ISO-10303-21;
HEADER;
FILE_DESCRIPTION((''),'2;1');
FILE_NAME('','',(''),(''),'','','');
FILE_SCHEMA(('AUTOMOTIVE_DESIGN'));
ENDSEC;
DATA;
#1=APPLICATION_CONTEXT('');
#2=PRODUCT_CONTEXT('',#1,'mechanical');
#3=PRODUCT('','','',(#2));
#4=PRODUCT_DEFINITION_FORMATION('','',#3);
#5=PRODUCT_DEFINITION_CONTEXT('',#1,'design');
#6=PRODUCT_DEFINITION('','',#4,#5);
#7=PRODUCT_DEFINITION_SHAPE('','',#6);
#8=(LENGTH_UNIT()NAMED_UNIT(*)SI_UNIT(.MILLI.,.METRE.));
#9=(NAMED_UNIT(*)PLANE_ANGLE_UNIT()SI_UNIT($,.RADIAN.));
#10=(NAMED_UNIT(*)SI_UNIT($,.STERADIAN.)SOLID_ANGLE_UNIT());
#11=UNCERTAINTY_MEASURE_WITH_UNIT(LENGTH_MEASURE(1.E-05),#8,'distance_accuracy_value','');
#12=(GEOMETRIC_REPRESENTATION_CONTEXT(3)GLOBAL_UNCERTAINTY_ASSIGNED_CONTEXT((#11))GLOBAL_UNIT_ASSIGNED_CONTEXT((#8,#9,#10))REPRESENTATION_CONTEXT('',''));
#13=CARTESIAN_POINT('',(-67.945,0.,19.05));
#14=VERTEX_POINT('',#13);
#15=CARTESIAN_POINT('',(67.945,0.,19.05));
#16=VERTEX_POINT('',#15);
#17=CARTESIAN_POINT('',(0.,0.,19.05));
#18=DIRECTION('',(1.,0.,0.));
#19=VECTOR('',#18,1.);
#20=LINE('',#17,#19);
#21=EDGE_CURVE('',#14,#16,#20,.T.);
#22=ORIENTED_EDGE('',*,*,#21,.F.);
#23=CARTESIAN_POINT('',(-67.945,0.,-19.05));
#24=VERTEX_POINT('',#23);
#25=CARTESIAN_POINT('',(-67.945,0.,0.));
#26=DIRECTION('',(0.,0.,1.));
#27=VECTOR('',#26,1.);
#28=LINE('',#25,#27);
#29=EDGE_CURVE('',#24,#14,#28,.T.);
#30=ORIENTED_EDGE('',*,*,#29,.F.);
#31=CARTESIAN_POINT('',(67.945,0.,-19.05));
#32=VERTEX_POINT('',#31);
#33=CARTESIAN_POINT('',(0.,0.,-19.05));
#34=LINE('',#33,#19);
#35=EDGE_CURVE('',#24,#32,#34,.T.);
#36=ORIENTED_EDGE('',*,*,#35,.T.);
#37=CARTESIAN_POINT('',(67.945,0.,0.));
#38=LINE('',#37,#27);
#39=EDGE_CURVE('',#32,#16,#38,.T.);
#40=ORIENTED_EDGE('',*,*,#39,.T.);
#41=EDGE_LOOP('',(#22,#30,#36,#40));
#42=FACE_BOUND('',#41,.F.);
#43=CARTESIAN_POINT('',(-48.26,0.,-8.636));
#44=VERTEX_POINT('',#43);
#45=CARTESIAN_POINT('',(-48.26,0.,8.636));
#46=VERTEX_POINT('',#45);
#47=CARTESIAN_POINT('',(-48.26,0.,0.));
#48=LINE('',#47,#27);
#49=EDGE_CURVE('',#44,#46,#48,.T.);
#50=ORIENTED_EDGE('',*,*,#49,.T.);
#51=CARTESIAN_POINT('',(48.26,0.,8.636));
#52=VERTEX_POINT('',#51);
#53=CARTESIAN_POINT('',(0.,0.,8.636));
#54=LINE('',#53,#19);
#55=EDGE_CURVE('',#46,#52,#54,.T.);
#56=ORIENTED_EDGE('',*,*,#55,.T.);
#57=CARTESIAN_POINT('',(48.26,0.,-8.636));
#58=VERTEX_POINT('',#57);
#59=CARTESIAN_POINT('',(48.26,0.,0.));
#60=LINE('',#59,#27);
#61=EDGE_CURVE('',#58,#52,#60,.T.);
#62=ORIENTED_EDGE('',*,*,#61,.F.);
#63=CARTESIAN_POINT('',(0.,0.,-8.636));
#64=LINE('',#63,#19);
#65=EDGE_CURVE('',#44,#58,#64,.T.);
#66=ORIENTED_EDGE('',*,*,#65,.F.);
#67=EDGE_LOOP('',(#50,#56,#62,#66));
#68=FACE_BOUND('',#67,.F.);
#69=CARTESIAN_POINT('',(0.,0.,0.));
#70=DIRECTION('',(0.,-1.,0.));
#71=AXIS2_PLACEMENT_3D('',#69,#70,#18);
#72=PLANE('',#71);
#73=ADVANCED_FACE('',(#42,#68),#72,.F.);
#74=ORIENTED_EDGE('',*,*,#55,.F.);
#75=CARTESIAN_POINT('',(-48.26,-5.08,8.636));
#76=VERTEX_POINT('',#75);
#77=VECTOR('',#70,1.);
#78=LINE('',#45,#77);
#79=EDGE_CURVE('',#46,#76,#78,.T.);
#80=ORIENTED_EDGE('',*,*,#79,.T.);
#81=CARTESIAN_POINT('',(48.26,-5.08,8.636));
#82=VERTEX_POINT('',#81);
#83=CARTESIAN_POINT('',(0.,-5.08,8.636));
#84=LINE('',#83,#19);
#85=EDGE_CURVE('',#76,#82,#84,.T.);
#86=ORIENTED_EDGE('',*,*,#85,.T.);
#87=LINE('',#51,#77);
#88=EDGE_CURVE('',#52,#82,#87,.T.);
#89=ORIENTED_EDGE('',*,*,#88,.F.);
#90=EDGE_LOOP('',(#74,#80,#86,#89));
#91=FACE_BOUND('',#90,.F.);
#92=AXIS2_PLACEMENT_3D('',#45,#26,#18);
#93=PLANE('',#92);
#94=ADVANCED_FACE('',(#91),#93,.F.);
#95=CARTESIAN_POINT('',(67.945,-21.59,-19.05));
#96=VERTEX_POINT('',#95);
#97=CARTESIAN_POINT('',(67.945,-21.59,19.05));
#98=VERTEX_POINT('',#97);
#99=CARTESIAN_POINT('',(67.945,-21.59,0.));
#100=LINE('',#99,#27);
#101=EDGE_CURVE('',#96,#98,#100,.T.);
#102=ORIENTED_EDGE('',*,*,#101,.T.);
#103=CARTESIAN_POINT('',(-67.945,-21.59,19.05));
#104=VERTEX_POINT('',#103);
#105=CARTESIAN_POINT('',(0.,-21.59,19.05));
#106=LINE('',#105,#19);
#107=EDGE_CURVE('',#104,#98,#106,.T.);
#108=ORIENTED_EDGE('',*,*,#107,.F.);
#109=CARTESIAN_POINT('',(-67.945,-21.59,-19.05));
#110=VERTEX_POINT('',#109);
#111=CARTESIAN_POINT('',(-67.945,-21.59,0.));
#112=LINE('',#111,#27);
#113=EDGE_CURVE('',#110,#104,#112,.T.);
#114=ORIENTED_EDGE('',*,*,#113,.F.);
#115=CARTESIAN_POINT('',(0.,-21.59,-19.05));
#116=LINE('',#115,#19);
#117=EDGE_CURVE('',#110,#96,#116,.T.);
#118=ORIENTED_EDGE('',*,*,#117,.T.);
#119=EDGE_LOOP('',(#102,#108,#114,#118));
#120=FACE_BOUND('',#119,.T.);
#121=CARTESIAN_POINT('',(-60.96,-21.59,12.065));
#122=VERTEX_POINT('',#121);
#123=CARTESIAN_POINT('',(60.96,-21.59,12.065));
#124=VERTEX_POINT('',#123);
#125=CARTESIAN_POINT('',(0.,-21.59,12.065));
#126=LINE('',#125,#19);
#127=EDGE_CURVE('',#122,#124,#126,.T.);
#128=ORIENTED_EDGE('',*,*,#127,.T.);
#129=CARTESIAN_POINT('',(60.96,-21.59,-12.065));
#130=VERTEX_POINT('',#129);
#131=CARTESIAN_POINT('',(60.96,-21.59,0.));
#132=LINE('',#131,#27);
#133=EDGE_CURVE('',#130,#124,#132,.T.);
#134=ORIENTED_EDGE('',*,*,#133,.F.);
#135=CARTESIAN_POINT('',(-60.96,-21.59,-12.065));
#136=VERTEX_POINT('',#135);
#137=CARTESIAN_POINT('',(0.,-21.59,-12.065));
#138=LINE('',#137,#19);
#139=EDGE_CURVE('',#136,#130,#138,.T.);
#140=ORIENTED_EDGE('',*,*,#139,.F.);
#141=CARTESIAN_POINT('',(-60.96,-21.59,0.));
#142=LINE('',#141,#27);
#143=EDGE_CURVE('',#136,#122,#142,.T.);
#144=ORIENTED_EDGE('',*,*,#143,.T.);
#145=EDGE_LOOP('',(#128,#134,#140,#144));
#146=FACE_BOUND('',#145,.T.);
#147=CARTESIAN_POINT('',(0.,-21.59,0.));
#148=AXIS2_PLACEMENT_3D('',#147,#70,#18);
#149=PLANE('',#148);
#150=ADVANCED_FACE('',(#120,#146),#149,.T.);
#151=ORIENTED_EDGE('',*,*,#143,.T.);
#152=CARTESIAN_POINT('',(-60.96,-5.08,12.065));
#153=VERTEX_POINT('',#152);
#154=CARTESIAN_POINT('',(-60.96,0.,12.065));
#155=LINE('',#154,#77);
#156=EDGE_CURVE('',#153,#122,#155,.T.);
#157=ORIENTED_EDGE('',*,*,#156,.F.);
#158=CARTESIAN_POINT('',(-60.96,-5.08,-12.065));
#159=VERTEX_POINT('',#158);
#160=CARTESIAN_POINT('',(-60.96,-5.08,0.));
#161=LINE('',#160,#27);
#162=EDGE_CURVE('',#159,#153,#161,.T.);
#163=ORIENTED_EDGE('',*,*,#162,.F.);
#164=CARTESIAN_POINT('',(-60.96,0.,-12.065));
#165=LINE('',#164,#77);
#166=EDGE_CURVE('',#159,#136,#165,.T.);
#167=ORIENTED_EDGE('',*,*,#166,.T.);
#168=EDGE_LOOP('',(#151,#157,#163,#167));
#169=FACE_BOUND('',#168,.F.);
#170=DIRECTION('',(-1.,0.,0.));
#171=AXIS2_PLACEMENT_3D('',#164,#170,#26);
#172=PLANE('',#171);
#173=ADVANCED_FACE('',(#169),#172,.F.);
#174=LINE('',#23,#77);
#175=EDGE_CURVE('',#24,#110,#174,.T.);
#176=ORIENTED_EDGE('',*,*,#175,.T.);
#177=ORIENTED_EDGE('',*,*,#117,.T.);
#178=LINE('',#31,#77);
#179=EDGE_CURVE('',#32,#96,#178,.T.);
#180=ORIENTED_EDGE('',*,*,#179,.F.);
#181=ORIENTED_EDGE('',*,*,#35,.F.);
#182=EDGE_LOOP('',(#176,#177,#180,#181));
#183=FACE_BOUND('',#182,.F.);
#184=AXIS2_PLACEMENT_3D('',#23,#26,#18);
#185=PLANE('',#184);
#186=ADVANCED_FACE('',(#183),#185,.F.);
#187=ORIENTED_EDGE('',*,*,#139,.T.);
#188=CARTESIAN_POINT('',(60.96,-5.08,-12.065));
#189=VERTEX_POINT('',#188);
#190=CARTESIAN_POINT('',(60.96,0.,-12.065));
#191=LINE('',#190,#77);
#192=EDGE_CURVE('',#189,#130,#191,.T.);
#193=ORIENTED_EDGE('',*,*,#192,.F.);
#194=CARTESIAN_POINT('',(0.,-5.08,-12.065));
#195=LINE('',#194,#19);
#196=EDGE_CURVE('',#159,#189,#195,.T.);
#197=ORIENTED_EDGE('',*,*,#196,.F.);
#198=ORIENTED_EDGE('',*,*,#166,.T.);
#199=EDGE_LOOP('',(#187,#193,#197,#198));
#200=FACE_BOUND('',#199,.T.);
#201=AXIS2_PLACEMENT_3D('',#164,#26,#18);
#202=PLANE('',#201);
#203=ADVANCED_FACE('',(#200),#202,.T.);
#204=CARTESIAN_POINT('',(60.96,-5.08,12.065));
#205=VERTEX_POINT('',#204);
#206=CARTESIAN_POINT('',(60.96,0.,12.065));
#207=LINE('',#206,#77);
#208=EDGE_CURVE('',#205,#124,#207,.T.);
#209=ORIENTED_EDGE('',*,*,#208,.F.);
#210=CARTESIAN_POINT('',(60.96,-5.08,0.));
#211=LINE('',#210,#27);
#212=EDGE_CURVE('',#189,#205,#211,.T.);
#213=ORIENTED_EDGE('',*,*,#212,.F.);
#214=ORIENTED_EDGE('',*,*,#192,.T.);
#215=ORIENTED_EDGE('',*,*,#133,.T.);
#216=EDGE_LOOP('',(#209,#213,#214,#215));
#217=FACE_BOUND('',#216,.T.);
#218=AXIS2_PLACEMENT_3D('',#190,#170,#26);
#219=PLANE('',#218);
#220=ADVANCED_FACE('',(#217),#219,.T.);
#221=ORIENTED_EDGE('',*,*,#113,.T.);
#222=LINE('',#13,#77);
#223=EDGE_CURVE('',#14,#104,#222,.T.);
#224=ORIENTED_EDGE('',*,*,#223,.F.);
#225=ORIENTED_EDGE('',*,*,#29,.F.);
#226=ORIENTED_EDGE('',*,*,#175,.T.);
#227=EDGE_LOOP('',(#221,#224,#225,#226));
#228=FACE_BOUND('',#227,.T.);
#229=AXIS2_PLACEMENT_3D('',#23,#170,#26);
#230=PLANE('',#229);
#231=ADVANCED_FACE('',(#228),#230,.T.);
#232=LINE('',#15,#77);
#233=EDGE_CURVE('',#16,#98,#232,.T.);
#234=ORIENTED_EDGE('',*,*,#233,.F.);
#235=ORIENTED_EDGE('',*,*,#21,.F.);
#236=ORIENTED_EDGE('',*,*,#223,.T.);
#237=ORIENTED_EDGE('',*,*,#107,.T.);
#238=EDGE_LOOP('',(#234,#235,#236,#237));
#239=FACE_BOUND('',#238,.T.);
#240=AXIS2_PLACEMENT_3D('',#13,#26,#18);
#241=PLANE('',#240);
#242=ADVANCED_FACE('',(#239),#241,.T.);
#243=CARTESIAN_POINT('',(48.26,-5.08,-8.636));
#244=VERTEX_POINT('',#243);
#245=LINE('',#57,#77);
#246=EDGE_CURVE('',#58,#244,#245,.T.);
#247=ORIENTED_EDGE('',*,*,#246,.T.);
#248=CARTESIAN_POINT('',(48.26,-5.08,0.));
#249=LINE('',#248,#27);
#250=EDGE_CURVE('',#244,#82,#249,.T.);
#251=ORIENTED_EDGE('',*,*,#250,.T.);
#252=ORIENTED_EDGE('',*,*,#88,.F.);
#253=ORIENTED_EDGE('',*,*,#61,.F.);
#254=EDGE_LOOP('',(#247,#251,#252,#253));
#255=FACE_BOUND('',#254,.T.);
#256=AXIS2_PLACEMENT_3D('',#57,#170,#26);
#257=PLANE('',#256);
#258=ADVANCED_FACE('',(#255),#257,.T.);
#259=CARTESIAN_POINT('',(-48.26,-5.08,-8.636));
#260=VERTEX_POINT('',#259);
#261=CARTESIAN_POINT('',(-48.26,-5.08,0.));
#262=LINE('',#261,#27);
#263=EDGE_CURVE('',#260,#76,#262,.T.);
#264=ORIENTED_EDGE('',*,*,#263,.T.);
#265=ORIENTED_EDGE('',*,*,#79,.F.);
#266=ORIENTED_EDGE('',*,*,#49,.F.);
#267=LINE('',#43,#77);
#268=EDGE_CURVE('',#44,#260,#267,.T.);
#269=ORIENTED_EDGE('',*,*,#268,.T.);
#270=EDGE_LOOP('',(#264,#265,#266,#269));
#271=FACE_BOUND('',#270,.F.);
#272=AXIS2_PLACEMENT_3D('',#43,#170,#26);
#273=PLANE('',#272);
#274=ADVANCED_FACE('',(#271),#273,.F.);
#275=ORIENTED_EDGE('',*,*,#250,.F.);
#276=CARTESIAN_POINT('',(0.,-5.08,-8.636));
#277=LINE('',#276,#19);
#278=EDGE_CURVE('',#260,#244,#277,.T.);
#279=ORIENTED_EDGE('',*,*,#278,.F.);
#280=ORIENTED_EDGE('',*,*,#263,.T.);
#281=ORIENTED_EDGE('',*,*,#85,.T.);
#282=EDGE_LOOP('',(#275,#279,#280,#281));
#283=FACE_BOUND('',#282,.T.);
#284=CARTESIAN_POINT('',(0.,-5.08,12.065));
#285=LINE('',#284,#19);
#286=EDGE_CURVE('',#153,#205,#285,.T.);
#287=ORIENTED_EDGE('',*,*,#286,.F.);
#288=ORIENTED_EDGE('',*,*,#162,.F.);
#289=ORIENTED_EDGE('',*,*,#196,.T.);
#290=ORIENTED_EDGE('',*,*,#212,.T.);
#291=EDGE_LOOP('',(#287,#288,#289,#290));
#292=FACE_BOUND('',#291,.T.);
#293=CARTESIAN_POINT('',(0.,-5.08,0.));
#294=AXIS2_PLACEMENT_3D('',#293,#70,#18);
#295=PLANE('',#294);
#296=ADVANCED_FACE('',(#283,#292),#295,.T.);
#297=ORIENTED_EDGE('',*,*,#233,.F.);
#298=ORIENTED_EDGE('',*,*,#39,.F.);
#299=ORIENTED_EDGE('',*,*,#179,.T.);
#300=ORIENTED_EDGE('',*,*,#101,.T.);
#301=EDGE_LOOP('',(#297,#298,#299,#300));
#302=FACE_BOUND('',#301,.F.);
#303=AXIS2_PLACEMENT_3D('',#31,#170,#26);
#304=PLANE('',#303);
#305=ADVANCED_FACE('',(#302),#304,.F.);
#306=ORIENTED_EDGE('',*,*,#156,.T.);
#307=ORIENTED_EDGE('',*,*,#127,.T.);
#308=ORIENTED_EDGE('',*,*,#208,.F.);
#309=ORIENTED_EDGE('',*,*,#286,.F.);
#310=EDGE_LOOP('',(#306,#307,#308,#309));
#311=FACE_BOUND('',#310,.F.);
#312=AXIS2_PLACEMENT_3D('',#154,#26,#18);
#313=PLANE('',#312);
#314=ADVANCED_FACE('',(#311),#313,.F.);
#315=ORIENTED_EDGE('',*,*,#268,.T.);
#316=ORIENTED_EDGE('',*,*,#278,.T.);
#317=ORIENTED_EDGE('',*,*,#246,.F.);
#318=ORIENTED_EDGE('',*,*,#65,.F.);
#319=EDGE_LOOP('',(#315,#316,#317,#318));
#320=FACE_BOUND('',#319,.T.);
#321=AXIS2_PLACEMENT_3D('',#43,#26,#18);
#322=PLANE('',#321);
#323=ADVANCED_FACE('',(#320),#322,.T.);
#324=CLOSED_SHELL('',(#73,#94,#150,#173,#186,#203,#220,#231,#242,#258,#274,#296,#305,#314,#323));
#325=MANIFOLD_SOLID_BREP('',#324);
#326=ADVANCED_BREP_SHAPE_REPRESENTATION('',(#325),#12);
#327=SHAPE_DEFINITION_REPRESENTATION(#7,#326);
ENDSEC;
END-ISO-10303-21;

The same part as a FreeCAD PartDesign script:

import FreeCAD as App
import Part
import Sketcher
Q = App.Units.Quantity


def add_polygon(sketch, points):
    """Adds a closed chain of lines whose ends are joined by coincident constraints."""
    first, n = sketch.GeometryCount, len(points)
    for a, b in zip(points, points[1:] + points[:1]):
        sketch.addGeometry(Part.LineSegment(App.Vector(*a, 0), App.Vector(*b, 0)), False)
    for i in range(n):
        sketch.addConstraint(Sketcher.Constraint("Coincident", first + i, 2, first + (i + 1) % n, 1))

doc = App.newDocument("Part")
body = doc.addObject("PartDesign::Body", "Body")

# Sketch on XZ plane
sketch1 = body.newObject("Sketcher::SketchObject", "Sketch")
sketch1.AttachmentSupport = (doc.getObject("XZ_Plane"), [""])
sketch1.MapMode = "FlatFace"
add_polygon(sketch1, [(-61, 12), (-61, -12), (61, -12), (61, 12)])  # lines 0-3
add_polygon(sketch1, [(48, -9), (-48, -9), (-48, 9), (48, 9)])  # lines 4-7
sketch1.addConstraint([
    Sketcher.Constraint("Vertical", 0),
    Sketcher.Constraint("Horizontal", 1),
    Sketcher.Constraint("Vertical", 2),
    Sketcher.Constraint("Horizontal", 3),
    Sketcher.Constraint("Horizontal", 4),
    Sketcher.Constraint("Vertical", 5),
    Sketcher.Constraint("Horizontal", 6),
    Sketcher.Constraint("Vertical", 7),
    Sketcher.Constraint("Symmetric", 0, 2, 2, 2, -1, 1),
    Sketcher.Constraint("Symmetric", 4, 2, 6, 2, -1, 1),
    Sketcher.Constraint("DistanceX", 1, 1, 1, 2, Q("4.8 in")),
    Sketcher.Constraint("DistanceX", 4, 2, 4, 1, Q("3.8 in")),
    Sketcher.Constraint("DistanceY", 0, 2, 0, 1, Q("0.95 in")),
    Sketcher.Constraint("DistanceY", 5, 1, 5, 2, Q("0.68 in")),
])
pad1 = body.newObject("PartDesign::Pad", "Pad")
pad1.Profile = sketch1
pad1.Length = Q("0.2 in")

# Sketch on XZ plane
sketch2 = body.newObject("Sketcher::SketchObject", "Sketch001")
sketch2.AttachmentSupport = (doc.getObject("XZ_Plane"), [""])
sketch2.MapMode = "FlatFace"
add_polygon(sketch2, [(-68, 19), (-68, -19), (68, -19), (68, 19)])  # lines 0-3
add_polygon(sketch2, [(61, -12), (-61, -12), (-61, 12), (61, 12)])  # lines 4-7
sketch2.addConstraint([
    Sketcher.Constraint("Vertical", 0),
    Sketcher.Constraint("Horizontal", 1),
    Sketcher.Constraint("Vertical", 2),
    Sketcher.Constraint("Horizontal", 3),
    Sketcher.Constraint("Horizontal", 4),
    Sketcher.Constraint("Vertical", 5),
    Sketcher.Constraint("Horizontal", 6),
    Sketcher.Constraint("Vertical", 7),
    Sketcher.Constraint("Symmetric", 0, 2, 2, 2, -1, 1),
    Sketcher.Constraint("Symmetric", 4, 2, 6, 2, -1, 1),
    Sketcher.Constraint("DistanceX", 4, 2, 4, 1, Q("4.8 in")),
    Sketcher.Constraint("DistanceY", 0, 2, 0, 1, Q("1.5 in")),
    Sketcher.Constraint("DistanceX", 1, 1, 1, 2, Q("5.35 in")),
    Sketcher.Constraint("DistanceY", 5, 1, 5, 2, Q("0.95 in")),
])
pad2 = body.newObject("PartDesign::Pad", "Pad001")
pad2.Profile = sketch2
pad2.Length = Q("0.85 in")

doc.recompute()
